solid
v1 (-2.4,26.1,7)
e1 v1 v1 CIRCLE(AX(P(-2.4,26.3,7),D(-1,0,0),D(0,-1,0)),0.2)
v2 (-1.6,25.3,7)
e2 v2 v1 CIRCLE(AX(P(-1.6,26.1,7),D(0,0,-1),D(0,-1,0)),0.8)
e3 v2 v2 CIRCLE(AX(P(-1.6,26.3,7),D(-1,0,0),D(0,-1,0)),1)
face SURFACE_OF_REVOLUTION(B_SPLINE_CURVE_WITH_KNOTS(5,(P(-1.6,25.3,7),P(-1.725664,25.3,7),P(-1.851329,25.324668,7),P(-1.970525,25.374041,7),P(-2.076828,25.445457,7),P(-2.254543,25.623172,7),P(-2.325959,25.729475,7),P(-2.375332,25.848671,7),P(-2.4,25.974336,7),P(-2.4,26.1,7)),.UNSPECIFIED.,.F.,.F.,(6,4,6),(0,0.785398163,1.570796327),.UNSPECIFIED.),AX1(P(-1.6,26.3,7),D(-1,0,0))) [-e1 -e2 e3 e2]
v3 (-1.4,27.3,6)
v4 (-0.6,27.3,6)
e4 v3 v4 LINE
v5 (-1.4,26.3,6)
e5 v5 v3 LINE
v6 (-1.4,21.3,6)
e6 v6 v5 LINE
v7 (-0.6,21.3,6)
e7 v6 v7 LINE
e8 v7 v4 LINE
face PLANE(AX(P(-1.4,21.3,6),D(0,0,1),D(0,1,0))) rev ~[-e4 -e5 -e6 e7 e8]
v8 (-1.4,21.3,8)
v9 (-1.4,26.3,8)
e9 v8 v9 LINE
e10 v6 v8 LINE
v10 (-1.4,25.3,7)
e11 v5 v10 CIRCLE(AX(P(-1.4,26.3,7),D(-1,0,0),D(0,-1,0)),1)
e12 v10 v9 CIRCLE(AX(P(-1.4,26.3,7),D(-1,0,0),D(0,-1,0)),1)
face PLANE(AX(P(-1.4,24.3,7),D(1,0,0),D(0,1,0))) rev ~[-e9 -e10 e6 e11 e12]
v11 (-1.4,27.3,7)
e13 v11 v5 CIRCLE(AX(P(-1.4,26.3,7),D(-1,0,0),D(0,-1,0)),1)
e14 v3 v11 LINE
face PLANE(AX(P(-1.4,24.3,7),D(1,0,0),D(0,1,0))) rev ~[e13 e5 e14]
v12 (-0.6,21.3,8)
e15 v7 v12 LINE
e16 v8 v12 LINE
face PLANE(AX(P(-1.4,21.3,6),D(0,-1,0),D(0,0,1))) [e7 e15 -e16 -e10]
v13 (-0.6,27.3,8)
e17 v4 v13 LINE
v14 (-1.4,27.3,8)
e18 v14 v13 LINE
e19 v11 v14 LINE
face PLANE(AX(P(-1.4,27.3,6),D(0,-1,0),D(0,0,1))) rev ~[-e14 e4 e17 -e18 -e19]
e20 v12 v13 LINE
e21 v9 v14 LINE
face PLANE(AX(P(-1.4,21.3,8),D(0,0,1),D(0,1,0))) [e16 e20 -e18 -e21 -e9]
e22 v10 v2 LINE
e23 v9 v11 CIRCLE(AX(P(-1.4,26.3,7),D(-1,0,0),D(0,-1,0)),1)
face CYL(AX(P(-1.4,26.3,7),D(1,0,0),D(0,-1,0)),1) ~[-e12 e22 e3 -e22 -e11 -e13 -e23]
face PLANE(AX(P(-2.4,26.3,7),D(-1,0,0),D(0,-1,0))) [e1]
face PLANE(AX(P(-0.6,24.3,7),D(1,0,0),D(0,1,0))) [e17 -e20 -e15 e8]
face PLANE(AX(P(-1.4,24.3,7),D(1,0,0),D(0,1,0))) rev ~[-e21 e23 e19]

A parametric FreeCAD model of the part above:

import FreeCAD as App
import Part
import Sketcher
from FreeCAD import Vector
Q = App.Units.Quantity


def edges_at(feature, points):
    """Names of the edges that pass closest to the given points."""
    edges = feature.Shape.Edges
    near = lambda p: min(range(len(edges)), key=lambda i: edges[i].distToShape(Part.Vertex(*p))[0])
    return sorted({f"Edge{near(p) + 1}" for p in points})


def add_polygon(sketch, points):
    """Adds a closed chain of lines whose ends are joined by coincident constraints."""
    first, n = sketch.GeometryCount, len(points)
    for a, b in zip(points, points[1:] + points[:1]):
        sketch.addGeometry(Part.LineSegment(App.Vector(*a, 0), App.Vector(*b, 0)), False)
    for i in range(n):
        sketch.addConstraint(Sketcher.Constraint("Coincident", first + i, 2, first + (i + 1) % n, 1))

doc = App.newDocument("Part")
body = doc.addObject("PartDesign::Body", "Body")

# Sketch on YZ plane
sketch1 = body.newObject("Sketcher::SketchObject", "Sketch")
sketch1.AttachmentSupport = (doc.getObject("YZ_Plane"), [""])
sketch1.MapMode = "FlatFace"
sketch1.AttachmentOffset = App.Placement(Vector(0, 0, -3), App.Rotation())
add_polygon(sketch1, [(16, 12), (16, 14), (10, 14), (10, 12)])  # lines 0-3
sketch1.addConstraint([
    Sketcher.Constraint("Vertical", 0),
    Sketcher.Constraint("Horizontal", 1),
    Sketcher.Constraint("Vertical", 2),
    Sketcher.Constraint("Horizontal", 3),
    Sketcher.Constraint("DistanceX", 1, 2, 1, 1, Q("6 mm")),
    Sketcher.Constraint("DistanceY", 0, 1, 0, 2, Q("2 mm")),
    Sketcher.Constraint("DistanceX", -1, 1, 0, 2, Q("16 mm")),
    Sketcher.Constraint("DistanceY", -1, 1, 0, 2, Q("14 mm")),
])
pad1 = body.newObject("PartDesign::Pad", "Pad")
pad1.Profile = sketch1
pad1.Length = 0.8

# Sketch on YZ plane
sketch2 = body.newObject("Sketcher::SketchObject", "Sketch001")
sketch2.AttachmentSupport = (doc.getObject("YZ_Plane"), [""])
sketch2.MapMode = "FlatFace"
sketch2.AttachmentOffset = App.Placement(Vector(0, 0, -3), App.Rotation())
sketch2.addGeometry(Part.Circle(Vector(11, 13, 0), Vector(0, 0, 1), 1), False)
sketch2.addConstraint([
    Sketcher.Constraint("Diameter", 0, Q("2 mm")),
    Sketcher.Constraint("DistanceX", -1, 1, 0, 3, Q("11 mm")),
    Sketcher.Constraint("DistanceY", -1, 1, 0, 3, Q("13 mm")),
])
pad2 = body.newObject("PartDesign::Pad", "Pad001")
pad2.Profile = sketch2
pad2.Length = 1
pad2.Reversed = True
doc.recompute()

fillet = body.newObject("PartDesign::Fillet", "Fillet")
fillet.Base = (pad2, edges_at(pad2, [(-4, 10, 13)]))
fillet.Radius = 0.8
body2 = doc.addObject("PartDesign::Body", "Body001")
doc.recompute()

body.Placement = App.Placement(Vector(-16, 0, 0), App.Rotation(Vector(0, 0, 1), 0))
boolean = body2.newObject("PartDesign::Boolean", "Boolean")
boolean.Type = "Fuse"
boolean.addObjects([body])
body3 = doc.addObject("PartDesign::Body", "Body002")
doc.recompute()

body2.Placement = App.Placement(Vector(17.6, 37.3, 20), App.Rotation(Vector(1, 0, 0), 180))
boolean2 = body3.newObject("PartDesign::Boolean", "Boolean001")
boolean2.Type = "Fuse"
boolean2.addObjects([body2])

doc.recompute()
